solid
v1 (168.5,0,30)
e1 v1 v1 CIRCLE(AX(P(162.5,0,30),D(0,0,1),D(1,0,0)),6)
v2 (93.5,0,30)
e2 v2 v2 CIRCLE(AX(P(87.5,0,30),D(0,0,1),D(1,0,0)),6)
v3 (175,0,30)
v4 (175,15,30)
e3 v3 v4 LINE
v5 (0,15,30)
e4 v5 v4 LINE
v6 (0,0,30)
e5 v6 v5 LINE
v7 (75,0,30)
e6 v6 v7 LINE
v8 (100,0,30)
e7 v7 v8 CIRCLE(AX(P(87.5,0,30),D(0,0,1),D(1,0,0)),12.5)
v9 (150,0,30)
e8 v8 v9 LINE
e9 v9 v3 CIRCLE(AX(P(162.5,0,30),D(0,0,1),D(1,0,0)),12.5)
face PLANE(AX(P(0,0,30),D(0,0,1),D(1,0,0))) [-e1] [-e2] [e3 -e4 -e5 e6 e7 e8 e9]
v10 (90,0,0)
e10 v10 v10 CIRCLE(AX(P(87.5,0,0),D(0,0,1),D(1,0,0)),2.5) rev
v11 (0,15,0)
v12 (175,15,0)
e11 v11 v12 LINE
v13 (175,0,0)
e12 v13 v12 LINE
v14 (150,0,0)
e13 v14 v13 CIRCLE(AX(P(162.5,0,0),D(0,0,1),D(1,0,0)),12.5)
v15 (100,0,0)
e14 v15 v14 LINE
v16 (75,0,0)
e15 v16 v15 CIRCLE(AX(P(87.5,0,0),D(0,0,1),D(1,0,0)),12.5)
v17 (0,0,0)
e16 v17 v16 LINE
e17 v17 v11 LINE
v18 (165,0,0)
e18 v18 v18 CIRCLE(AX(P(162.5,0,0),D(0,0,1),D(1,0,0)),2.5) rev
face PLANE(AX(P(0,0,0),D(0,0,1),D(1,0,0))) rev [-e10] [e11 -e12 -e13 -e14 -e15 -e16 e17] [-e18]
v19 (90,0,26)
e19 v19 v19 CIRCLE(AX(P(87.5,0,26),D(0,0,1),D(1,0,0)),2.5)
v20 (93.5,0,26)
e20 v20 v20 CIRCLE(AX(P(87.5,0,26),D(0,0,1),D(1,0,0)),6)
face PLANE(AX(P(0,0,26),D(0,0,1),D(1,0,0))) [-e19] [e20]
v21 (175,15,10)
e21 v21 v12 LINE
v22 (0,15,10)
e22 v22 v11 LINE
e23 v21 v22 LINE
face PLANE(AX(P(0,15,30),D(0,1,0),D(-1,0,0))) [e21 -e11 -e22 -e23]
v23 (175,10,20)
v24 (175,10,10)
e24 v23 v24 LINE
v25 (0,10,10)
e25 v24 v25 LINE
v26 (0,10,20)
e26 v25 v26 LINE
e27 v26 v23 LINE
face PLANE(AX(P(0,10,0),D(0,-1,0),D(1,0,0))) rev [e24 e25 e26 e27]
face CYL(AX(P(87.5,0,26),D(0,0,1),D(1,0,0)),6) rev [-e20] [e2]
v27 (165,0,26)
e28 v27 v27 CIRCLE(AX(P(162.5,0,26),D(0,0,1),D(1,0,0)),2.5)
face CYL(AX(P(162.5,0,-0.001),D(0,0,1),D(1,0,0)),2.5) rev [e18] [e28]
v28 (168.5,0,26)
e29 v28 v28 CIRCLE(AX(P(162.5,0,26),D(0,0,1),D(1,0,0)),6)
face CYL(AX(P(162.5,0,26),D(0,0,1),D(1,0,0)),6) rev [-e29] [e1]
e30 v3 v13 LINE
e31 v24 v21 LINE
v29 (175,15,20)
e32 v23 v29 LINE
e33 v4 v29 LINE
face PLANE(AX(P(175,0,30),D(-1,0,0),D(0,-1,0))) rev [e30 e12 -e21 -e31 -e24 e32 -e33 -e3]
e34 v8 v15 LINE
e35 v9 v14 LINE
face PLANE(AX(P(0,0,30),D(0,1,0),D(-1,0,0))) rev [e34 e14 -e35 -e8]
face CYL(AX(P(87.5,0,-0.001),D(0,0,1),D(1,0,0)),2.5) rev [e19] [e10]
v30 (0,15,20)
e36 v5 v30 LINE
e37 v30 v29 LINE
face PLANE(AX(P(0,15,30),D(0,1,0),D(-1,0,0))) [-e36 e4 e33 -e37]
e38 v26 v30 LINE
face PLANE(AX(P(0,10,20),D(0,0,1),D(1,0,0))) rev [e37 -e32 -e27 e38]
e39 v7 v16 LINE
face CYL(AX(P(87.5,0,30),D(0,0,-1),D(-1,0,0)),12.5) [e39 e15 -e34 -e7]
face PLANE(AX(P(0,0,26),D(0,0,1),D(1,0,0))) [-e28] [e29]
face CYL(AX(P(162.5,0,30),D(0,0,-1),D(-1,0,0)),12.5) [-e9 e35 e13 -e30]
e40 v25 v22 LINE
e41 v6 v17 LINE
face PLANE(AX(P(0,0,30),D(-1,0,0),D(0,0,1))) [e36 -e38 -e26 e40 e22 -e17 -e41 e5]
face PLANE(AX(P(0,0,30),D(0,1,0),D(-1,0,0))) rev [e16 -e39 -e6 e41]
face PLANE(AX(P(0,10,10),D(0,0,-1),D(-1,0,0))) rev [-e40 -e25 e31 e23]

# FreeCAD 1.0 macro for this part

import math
import FreeCAD as App
import Part
import Sketcher

V = App.Vector
Q = App.Units.Quantity


def add_polygon(sketch, points):
    """Adds a closed chain of lines whose ends are joined by coincident constraints."""
    first, n = sketch.GeometryCount, len(points)
    for a, b in zip(points, points[1:] + points[:1]):
        sketch.addGeometry(Part.LineSegment(App.Vector(*a, 0), App.Vector(*b, 0)), False)
    for i in range(n):
        sketch.addConstraint(Sketcher.Constraint("Coincident", first + i, 2, first + (i + 1) % n, 1))

doc = App.newDocument("Part")
body = doc.addObject("PartDesign::Body", "Body")

# Sketch on XY plane
sketch1 = doc.addObject("Sketcher::SketchObject", "Sketch")
body.addObject(sketch1)
sketch1.AttachmentSupport = (doc.XY_Plane, [""])
sketch1.MapMode = "FlatFace"
sketch1.addGeometry([
    Part.LineSegment(V(0, 15, 0), V(0, 0, 0)),  # 0
    Part.LineSegment(V(0, 0, 0), V(75, 0, 0)),  # 1
    Part.ArcOfCircle(Part.Circle(V(88, 0, 0), V(0, 0, 1), 12), math.radians(180), math.radians(360)),  # 2
    Part.LineSegment(V(100, 0, 0), V(150, 0, 0)),  # 3
    Part.ArcOfCircle(Part.Circle(V(162, 0, 0), V(0, 0, 1), 12), math.radians(180), math.radians(360)),  # 4
    Part.LineSegment(V(175, 0, 0), V(175, 15, 0)),  # 5
    Part.LineSegment(V(175, 15, 0), V(0, 15, 0)),  # 6
], False)
sketch1.addConstraint([
    Sketcher.Constraint("Coincident", 0, 2, 1, 1),
    Sketcher.Constraint("Coincident", 1, 2, 2, 1),
    Sketcher.Constraint("Coincident", 2, 2, 3, 1),
    Sketcher.Constraint("Coincident", 3, 2, 4, 1),
    Sketcher.Constraint("Tangent", 4, 2, 5, 1),
    Sketcher.Constraint("Coincident", 5, 2, 6, 1),
    Sketcher.Constraint("Coincident", 6, 2, 0, 1),
    Sketcher.Constraint("Vertical", 0),
    Sketcher.Constraint("Horizontal", 1),
    Sketcher.Constraint("Horizontal", 3),
    Sketcher.Constraint("Vertical", 5),
    Sketcher.Constraint("Horizontal", 6),
    Sketcher.Constraint("Coincident", 0, 2, -1, 1),
    Sketcher.Constraint("Equal", 2, 4),
    Sketcher.Constraint("PointOnObject", 2, 3, -1),
    Sketcher.Constraint("PointOnObject", 4, 3, -1),
    Sketcher.Constraint("PointOnObject", 2, 2, -1),
    Sketcher.Constraint("Radius", 2, Q("12.5 mm")),
    Sketcher.Constraint("DistanceX", 1, 1, 1, 2, Q("75 mm")),
    Sketcher.Constraint("DistanceX", 3, 1, 3, 2, Q("50 mm")),
    Sketcher.Constraint("DistanceY", 0, 2, 0, 1, Q("15 mm")),
])
pad1 = doc.addObject("PartDesign::Pad", "Pad")
body.addObject(pad1)
pad1.Profile = sketch1
pad1.Length = 30

# Sketch on XY plane
sketch2 = doc.addObject("Sketcher::SketchObject", "Sketch001")
body.addObject(sketch2)
sketch2.AttachmentSupport = (doc.XY_Plane, [""])
sketch2.MapMode = "FlatFace"
sketch2.AttachmentOffset = App.Placement(V(0, 0, 30), App.Rotation())
sketch2.addGeometry(Part.Circle(V(87.5, 0, 0), V(0, 0, 1), 2.5), False)
sketch2.addConstraint([
    Sketcher.Constraint("PointOnObject", 0, 3, -1),
    Sketcher.Constraint("Diameter", 0, Q("5 mm")),
    Sketcher.Constraint("DistanceX", -1, 1, 0, 3, Q("87.5 mm")),
])
pocket1 = doc.addObject("PartDesign::Pocket", "Pocket")
body.addObject(pocket1)
pocket1.Profile = sketch2
pocket1.Type = "UpToFirst"

# Sketch on XY plane
sketch3 = doc.addObject("Sketcher::SketchObject", "Sketch002")
body.addObject(sketch3)
sketch3.AttachmentSupport = (doc.XY_Plane, [""])
sketch3.MapMode = "FlatFace"
sketch3.AttachmentOffset = App.Placement(V(0, 0, 30), App.Rotation())
sketch3.addGeometry(Part.Circle(V(162.5, 0, 0), V(0, 0, 1), 2.5), False)
sketch3.addConstraint([
    Sketcher.Constraint("PointOnObject", 0, 3, -1),
    Sketcher.Constraint("Diameter", 0, Q("5 mm")),
    Sketcher.Constraint("DistanceX", -1, 1, 0, 3, Q("162.5 mm")),
])
pocket2 = doc.addObject("PartDesign::Pocket", "Pocket001")
body.addObject(pocket2)
pocket2.Profile = sketch3
pocket2.Type = "UpToFirst"

# Sketch on XY plane
sketch4 = doc.addObject("Sketcher::SketchObject", "Sketch003")
body.addObject(sketch4)
sketch4.AttachmentSupport = (doc.XY_Plane, [""])
sketch4.MapMode = "FlatFace"
sketch4.AttachmentOffset = App.Placement(V(0, 0, 30), App.Rotation())
sketch4.addGeometry([
    Part.Circle(V(87.5, 0, 0), V(0, 0, 1), 6),
    Part.Circle(V(87.5, 0, 0), V(0, 0, 1), 2.5),
    Part.Circle(V(162.5, 0, 0), V(0, 0, 1), 6),
    Part.Circle(V(162.5, 0, 0), V(0, 0, 1), 2.5),
], False)
sketch4.addConstraint([
    Sketcher.Constraint("Coincident", 1, 3, 0, 3),
    Sketcher.Constraint("Coincident", 3, 3, 2, 3),
    Sketcher.Constraint("Equal", 0, 2),
    Sketcher.Constraint("Equal", 1, 3),
    Sketcher.Constraint("PointOnObject", 0, 3, -1),
    Sketcher.Constraint("PointOnObject", 2, 3, -1),
    Sketcher.Constraint("Diameter", 0, Q("12 mm")),
    Sketcher.Constraint("Diameter", 1, Q("5 mm")),
    Sketcher.Constraint("DistanceX", 0, 3, 2, 3, Q("75 mm")),
    Sketcher.Constraint("DistanceX", -1, 1, 0, 3, Q("87.5 mm")),
])
pocket3 = doc.addObject("PartDesign::Pocket", "Pocket002")
body.addObject(pocket3)
pocket3.Profile = sketch4
pocket3.Length = 4

# Sketch on XZ plane
sketch5 = doc.addObject("Sketcher::SketchObject", "Sketch004")
body.addObject(sketch5)
sketch5.AttachmentSupport = (doc.XZ_Plane, [""])
sketch5.MapMode = "FlatFace"
sketch5.AttachmentOffset = App.Placement(V(0, 0, -15), App.Rotation())
add_polygon(sketch5, [(0, 10), (0, 20), (175, 20), (175, 10)])  # lines 0-3
sketch5.addConstraint([
    Sketcher.Constraint("Vertical", 0),
    Sketcher.Constraint("Horizontal", 1),
    Sketcher.Constraint("Vertical", 2),
    Sketcher.Constraint("Horizontal", 3),
    Sketcher.Constraint("PointOnObject", 0, 2, -2),
    Sketcher.Constraint("DistanceX", 1, 1, 1, 2, Q("175 mm")),
    Sketcher.Constraint("DistanceY", 0, 1, 0, 2, Q("10 mm")),
    Sketcher.Constraint("DistanceY", -1, 1, 0, 2, Q("20 mm")),
])
pocket4 = doc.addObject("PartDesign::Pocket", "Pocket003")
body.addObject(pocket4)
pocket4.Profile = sketch5
pocket4.Length = 5
pocket4.Reversed = True

doc.recompute()
